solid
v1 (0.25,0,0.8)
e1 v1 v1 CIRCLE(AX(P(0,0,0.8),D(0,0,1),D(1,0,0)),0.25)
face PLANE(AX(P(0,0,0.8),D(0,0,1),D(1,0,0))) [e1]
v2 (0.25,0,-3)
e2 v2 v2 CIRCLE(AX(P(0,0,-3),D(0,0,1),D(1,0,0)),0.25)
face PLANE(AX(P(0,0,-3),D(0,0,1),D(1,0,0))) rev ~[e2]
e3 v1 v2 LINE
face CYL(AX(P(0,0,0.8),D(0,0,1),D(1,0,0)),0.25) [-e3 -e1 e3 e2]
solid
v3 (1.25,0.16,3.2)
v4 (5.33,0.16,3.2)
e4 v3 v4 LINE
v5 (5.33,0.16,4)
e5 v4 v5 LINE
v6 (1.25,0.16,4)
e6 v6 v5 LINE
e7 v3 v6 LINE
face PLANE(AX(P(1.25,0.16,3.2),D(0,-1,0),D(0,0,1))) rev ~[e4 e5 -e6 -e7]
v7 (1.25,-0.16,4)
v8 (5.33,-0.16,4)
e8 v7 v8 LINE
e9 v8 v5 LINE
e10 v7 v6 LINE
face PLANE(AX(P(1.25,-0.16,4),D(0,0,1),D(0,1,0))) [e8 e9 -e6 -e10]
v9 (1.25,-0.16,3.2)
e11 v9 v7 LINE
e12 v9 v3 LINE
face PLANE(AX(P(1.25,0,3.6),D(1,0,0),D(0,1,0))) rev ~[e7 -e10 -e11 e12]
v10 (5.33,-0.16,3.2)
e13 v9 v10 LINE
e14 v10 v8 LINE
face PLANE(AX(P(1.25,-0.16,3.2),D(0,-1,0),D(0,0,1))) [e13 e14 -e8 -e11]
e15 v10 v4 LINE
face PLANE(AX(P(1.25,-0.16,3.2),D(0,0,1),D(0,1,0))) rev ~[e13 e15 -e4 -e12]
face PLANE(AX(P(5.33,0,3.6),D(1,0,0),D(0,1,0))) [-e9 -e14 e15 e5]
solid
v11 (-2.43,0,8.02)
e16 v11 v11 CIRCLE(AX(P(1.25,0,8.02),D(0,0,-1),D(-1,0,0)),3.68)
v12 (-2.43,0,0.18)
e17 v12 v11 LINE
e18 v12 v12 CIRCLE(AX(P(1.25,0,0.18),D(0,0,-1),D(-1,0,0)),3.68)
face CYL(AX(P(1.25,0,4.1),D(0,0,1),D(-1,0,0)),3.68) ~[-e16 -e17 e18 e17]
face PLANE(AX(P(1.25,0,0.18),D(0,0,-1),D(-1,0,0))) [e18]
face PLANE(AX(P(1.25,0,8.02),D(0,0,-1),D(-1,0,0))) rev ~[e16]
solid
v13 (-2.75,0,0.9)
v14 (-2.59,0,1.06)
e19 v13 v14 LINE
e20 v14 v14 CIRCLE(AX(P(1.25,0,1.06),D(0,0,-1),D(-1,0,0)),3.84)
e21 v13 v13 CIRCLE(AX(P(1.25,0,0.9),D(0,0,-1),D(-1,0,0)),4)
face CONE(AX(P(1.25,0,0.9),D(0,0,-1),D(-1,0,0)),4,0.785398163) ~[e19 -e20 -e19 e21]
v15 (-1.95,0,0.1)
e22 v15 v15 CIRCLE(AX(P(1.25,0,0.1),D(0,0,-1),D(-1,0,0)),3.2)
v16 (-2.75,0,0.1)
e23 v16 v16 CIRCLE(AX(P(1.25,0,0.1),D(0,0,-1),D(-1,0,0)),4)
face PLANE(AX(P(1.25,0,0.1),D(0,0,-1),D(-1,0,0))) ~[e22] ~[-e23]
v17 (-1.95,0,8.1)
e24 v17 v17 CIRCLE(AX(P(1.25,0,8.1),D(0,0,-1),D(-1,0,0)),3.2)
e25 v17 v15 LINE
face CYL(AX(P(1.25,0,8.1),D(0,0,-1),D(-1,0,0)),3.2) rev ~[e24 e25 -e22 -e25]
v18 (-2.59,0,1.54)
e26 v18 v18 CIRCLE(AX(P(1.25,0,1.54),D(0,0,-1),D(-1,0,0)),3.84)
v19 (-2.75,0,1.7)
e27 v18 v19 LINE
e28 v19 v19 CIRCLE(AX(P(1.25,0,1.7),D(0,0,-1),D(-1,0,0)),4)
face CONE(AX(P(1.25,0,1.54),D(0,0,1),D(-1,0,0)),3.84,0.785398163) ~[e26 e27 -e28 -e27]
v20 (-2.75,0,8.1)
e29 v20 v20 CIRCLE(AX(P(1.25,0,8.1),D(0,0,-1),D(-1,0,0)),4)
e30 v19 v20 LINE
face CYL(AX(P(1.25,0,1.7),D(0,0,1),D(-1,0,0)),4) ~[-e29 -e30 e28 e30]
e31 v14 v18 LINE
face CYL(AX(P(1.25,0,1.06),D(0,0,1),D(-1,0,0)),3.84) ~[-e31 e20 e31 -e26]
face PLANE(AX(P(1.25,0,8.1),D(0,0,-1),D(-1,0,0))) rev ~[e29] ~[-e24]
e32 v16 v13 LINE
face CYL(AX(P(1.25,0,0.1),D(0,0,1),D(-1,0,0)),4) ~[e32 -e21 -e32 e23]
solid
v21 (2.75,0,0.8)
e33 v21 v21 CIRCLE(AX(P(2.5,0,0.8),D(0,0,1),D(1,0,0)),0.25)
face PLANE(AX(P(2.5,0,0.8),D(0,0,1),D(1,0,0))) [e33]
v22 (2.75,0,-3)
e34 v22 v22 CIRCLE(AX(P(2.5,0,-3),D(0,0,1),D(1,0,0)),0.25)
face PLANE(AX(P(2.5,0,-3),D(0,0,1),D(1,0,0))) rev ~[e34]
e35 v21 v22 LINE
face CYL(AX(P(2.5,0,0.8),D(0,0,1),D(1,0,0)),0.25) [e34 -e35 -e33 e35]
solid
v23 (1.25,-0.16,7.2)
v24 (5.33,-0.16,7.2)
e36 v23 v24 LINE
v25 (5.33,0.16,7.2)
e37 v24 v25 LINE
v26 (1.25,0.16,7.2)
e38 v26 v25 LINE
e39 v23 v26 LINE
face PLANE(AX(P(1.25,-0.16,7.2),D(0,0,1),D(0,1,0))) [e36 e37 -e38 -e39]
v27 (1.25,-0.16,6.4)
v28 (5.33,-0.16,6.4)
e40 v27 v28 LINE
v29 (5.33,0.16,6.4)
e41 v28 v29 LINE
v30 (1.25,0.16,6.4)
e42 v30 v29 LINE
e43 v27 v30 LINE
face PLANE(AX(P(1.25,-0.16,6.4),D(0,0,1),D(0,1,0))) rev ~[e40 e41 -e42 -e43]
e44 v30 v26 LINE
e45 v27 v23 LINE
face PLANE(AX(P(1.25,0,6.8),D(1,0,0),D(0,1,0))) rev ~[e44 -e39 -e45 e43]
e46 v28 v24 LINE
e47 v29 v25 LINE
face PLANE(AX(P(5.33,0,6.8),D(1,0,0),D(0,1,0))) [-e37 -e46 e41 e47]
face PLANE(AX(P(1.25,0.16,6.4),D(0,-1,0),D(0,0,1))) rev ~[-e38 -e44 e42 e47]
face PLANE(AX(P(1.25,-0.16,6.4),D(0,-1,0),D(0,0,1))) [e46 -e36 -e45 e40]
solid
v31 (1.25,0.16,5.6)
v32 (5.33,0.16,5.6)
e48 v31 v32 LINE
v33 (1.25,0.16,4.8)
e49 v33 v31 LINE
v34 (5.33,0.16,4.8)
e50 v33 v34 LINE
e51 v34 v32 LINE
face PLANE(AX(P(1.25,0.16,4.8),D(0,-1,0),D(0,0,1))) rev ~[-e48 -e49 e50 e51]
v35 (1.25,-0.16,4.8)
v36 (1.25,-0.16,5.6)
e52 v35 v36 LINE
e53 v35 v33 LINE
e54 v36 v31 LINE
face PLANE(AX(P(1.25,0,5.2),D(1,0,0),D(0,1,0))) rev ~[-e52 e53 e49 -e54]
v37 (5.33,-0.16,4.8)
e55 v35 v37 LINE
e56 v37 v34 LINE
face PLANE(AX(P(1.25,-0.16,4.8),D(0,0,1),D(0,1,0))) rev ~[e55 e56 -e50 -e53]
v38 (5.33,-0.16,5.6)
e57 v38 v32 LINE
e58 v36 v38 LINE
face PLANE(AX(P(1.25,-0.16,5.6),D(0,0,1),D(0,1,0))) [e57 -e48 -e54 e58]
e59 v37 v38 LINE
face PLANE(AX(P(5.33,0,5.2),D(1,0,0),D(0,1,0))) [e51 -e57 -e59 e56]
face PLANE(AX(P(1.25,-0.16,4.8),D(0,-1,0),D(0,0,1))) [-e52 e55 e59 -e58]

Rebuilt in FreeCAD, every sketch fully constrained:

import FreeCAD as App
import Part
import Sketcher
Q = App.Units.Quantity


def add_polygon(sketch, points):
    """Adds a closed chain of lines whose ends are joined by coincident constraints."""
    first, n = sketch.GeometryCount, len(points)
    for a, b in zip(points, points[1:] + points[:1]):
        sketch.addGeometry(Part.LineSegment(App.Vector(*a, 0), App.Vector(*b, 0)), False)
    for i in range(n):
        sketch.addConstraint(Sketcher.Constraint("Coincident", first + i, 2, first + (i + 1) % n, 1))

doc = App.newDocument("Part")
body = doc.addObject("PartDesign::Body", "Body")

# Sketch on XZ plane
sketch1 = body.newObject("Sketcher::SketchObject", "Sketch")
sketch1.AttachmentSupport = (doc.getObject("XZ_Plane"), [""])
sketch1.MapMode = "FlatFace"
add_polygon(sketch1, [(-2.75, 0.9), (-2.75, 0.1), (-1.95, 0.1), (-1.95, 8.1), (-2.75, 8.1), (-2.75, 1.7), (-2.59, 1.54), (-2.59, 1.06)])  # lines 0-7
sketch1.addGeometry(Part.LineSegment(App.Vector(1.25, 8.1, 0), App.Vector(1.25, 0.1, 0)), True)  # axis
sketch1.addConstraint(Sketcher.Constraint("Vertical", 0))
sketch1.addConstraint(Sketcher.Constraint("Horizontal", 1))
sketch1.addConstraint(Sketcher.Constraint("Vertical", 2))
sketch1.addConstraint(Sketcher.Constraint("Horizontal", 3))
sketch1.addConstraint(Sketcher.Constraint("Vertical", 4))
sketch1.addConstraint(Sketcher.Constraint("Vertical", 6))
sketch1.addConstraint(Sketcher.Constraint("Vertical", 8))
sketch1.addConstraint(Sketcher.Constraint("Perpendicular", 5, 7))
sketch1.addConstraint(Sketcher.Constraint("Horizontal", 3, 2, 8, 1))
sketch1.addConstraint(Sketcher.Constraint("Horizontal", 1, 2, 8, 2))
sketch1.addConstraint(Sketcher.Constraint("Vertical", 0, 2, 3, 2))
sketch1.addConstraint(Sketcher.Constraint("Equal", 3, 0))
sketch1.addConstraint(Sketcher.Constraint("Equal", 5, 7))
sketch1.addConstraint(Sketcher.Constraint("DistanceY", 2, 1, 2, 2, Q("8 mm")))
sketch1.addConstraint(Sketcher.Constraint("DistanceX", 1, 1, 1, 2, Q("0.8 mm")))
sketch1.addConstraint(Sketcher.Constraint("DistanceY", 4, 2, 4, 1, Q("6.4 mm")))
sketch1.addConstraint(Sketcher.Constraint("DistanceX", 3, 2, 8, 1, Q("4 mm")))
sketch1.addConstraint(Sketcher.Constraint("DistanceY", 6, 2, 6, 1, Q("0.48 mm")))
sketch1.addConstraint(Sketcher.Constraint("DistanceY", -1, 1, 0, 2, Q("0.1 mm")))
sketch1.addConstraint(Sketcher.Constraint("DistanceX", 0, 2, -1, 1, Q("2.75 mm")))
revolution = body.newObject("PartDesign::Revolution", "Revolution")
revolution.Profile = sketch1
revolution.ReferenceAxis = (sketch1, ["Axis0"])
revolution.Angle = 360
body2 = doc.addObject("PartDesign::Body", "Body001")

# Sketch on XZ plane
sketch2 = body2.newObject("Sketcher::SketchObject", "Sketch001")
sketch2.AttachmentSupport = (doc.getObject("XZ_Plane001"), [""])
sketch2.MapMode = "FlatFace"
add_polygon(sketch2, [(-2.4, 8), (-2.4, 0.2), (1.2, 0.2), (1.2, 8)])  # lines 0-3
sketch2.addGeometry(Part.LineSegment(App.Vector(1.2, 8, 0), App.Vector(1.2, 0.2, 0)), True)  # axis
sketch2.addConstraint(Sketcher.Constraint("Vertical", 0))
sketch2.addConstraint(Sketcher.Constraint("Horizontal", 1))
sketch2.addConstraint(Sketcher.Constraint("Vertical", 2))
sketch2.addConstraint(Sketcher.Constraint("Horizontal", 3))
sketch2.addConstraint(Sketcher.Constraint("Vertical", 4))
sketch2.addConstraint(Sketcher.Constraint("Coincident", 4, 1, 2, 2))
sketch2.addConstraint(Sketcher.Constraint("Horizontal", 0, 2, 4, 2))
sketch2.addConstraint(Sketcher.Constraint("DistanceX", 1, 1, 1, 2, Q("3.68 mm")))
sketch2.addConstraint(Sketcher.Constraint("DistanceY", 0, 2, 0, 1, Q("7.84 mm")))
sketch2.addConstraint(Sketcher.Constraint("DistanceX", 0, 2, -1, 1, Q("2.43 mm")))
sketch2.addConstraint(Sketcher.Constraint("DistanceY", -1, 1, 0, 2, Q("0.18 mm")))
revolution2 = body2.newObject("PartDesign::Revolution", "Revolution001")
revolution2.Profile = sketch2
revolution2.ReferenceAxis = (sketch2, ["Axis0"])
revolution2.Angle = 360
body3 = doc.addObject("PartDesign::Body", "Body002")
body3.AllowCompound = True

# Sketch on XY plane
sketch3 = body3.newObject("Sketcher::SketchObject", "Sketch002")
sketch3.AttachmentSupport = (doc.getObject("XY_Plane002"), [""])
sketch3.MapMode = "FlatFace"
sketch3.AttachmentOffset = App.Placement(App.Vector(0, 0, 0.8), App.Rotation())
sketch3.addGeometry(Part.Circle(App.Vector(0, 0, 0), App.Vector(0, 0, 1), 0.25), False)
sketch3.addGeometry(Part.Circle(App.Vector(2.5, 0, 0), App.Vector(0, 0, 1), 0.25), False)
sketch3.addConstraint(Sketcher.Constraint("Coincident", 0, 3, -1, 1))
sketch3.addConstraint(Sketcher.Constraint("Equal", 0, 1))
sketch3.addConstraint(Sketcher.Constraint("PointOnObject", 1, 3, -1))
sketch3.addConstraint(Sketcher.Constraint("Diameter", 0, Q("0.5 mm")))
sketch3.addConstraint(Sketcher.Constraint("DistanceX", -1, 1, 1, 3, Q("2.5 mm")))
pad1 = body3.newObject("PartDesign::Pad", "Pad")
pad1.Profile = sketch3
pad1.Length = 3.8
pad1.Reversed = True
body4 = doc.addObject("PartDesign::Body", "Body003")
body4.AllowCompound = True

# Sketch on YZ plane
sketch4 = body4.newObject("Sketcher::SketchObject", "Sketch003")
sketch4.AttachmentSupport = (doc.getObject("YZ_Plane003"), [""])
sketch4.MapMode = "FlatFace"
sketch4.AttachmentOffset = App.Placement(App.Vector(0, 0, 1.25), App.Rotation())
add_polygon(sketch4, [(-0.16, 4), (-0.16, 3.2), (0.16, 3.2), (0.16, 4)])  # lines 0-3
add_polygon(sketch4, [(-0.16, 5.6), (-0.16, 4.8), (0.16, 4.8), (0.16, 5.6)])  # lines 4-7
add_polygon(sketch4, [(-0.16, 7.2), (-0.16, 6.4), (0.16, 6.4), (0.16, 7.2)])  # lines 8-11
sketch4.addConstraint(Sketcher.Constraint("Vertical", 0))
sketch4.addConstraint(Sketcher.Constraint("Horizontal", 1))
sketch4.addConstraint(Sketcher.Constraint("Vertical", 2))
sketch4.addConstraint(Sketcher.Constraint("Horizontal", 3))
sketch4.addConstraint(Sketcher.Constraint("Vertical", 4))
sketch4.addConstraint(Sketcher.Constraint("Horizontal", 5))
sketch4.addConstraint(Sketcher.Constraint("Vertical", 6))
sketch4.addConstraint(Sketcher.Constraint("Horizontal", 7))
sketch4.addConstraint(Sketcher.Constraint("Vertical", 8))
sketch4.addConstraint(Sketcher.Constraint("Horizontal", 9))
sketch4.addConstraint(Sketcher.Constraint("Vertical", 10))
sketch4.addConstraint(Sketcher.Constraint("Horizontal", 11))
sketch4.addConstraint(Sketcher.Constraint("Vertical", 3, 2, 4, 2))
sketch4.addConstraint(Sketcher.Constraint("Vertical", 2, 2, 5, 2))
sketch4.addConstraint(Sketcher.Constraint("Vertical", 7, 2, 8, 2))
sketch4.addConstraint(Sketcher.Constraint("Vertical", 6, 2, 9, 2))
sketch4.addConstraint(Sketcher.Constraint("Equal", 2, 4))
sketch4.addConstraint(Sketcher.Constraint("Equal", 6, 8))
sketch4.addConstraint(Sketcher.Constraint("DistanceY", 0, 2, 0, 1, Q("0.8 mm")))
sketch4.addConstraint(Sketcher.Constraint("DistanceY", -1, 1, 2, 2, Q("4 mm")))
sketch4.addConstraint(Sketcher.Constraint("DistanceX", 1, 1, 1, 2, Q("0.32 mm")))
sketch4.addConstraint(Sketcher.Constraint("DistanceY", -1, 1, 4, 2, Q("4.8 mm")))
sketch4.addConstraint(Sketcher.Constraint("DistanceY", -1, 1, 8, 2, Q("6.4 mm")))
sketch4.addConstraint(Sketcher.Constraint("DistanceX", 0, 2, -1, 1, Q("0.16 mm")))
pad2 = body4.newObject("PartDesign::Pad", "Pad001")
pad2.Profile = sketch4
pad2.Length = 4.08

doc.recompute()
